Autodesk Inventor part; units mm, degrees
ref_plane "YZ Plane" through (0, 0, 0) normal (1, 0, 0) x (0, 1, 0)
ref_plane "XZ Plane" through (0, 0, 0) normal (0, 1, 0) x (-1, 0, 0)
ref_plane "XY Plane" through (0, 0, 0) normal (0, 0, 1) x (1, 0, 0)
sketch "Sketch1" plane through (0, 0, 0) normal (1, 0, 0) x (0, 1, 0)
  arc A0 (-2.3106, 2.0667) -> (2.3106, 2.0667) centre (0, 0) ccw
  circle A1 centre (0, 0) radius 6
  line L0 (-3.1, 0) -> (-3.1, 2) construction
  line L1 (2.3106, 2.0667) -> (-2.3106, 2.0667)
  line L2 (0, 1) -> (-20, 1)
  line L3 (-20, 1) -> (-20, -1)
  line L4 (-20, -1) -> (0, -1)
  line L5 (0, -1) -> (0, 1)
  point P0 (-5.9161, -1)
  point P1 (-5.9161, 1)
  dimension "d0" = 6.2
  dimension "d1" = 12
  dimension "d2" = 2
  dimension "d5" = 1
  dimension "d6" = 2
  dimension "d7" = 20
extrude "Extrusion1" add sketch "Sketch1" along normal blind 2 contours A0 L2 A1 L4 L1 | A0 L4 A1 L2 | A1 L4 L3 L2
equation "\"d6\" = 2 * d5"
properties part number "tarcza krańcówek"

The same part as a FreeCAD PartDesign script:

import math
import FreeCAD as App
import Part
import Sketcher
Q = App.Units.Quantity

doc = App.newDocument("Part")
body = doc.addObject("PartDesign::Body", "Body")

sketch1 = body.newObject("Sketcher::SketchObject", "Sketch")
sketch1.AttachmentSupport = (doc.getObject("YZ_Plane"), [""])
sketch1.MapMode = "FlatFace"
sketch1.addGeometry([
    Part.LineSegment(App.Vector(-5.9, 1, 0), App.Vector(-20, 1, 0)),
    Part.LineSegment(App.Vector(-20, 1, 0), App.Vector(-20, -1, 0)),
    Part.LineSegment(App.Vector(-20, -1, 0), App.Vector(-5.9, -1, 0)),
    Part.ArcOfCircle(Part.Circle(App.Vector(0, 0, 0), App.Vector(0, 0, 1), 6), math.radians(-170), math.radians(170)),
    Part.LineSegment(App.Vector(-2.3, 2.1, 0), App.Vector(2.3, 2.1, 0)),
    Part.ArcOfCircle(Part.Circle(App.Vector(0, 0, 0), App.Vector(0, 0, 1), 3.1), math.radians(138), math.radians(402)),
], False)
sketch1.addConstraint([
    Sketcher.Constraint("Coincident", 0, 2, 1, 1),
    Sketcher.Constraint("Coincident", 1, 2, 2, 1),
    Sketcher.Constraint("Coincident", 2, 2, 3, 1),
    Sketcher.Constraint("Coincident", 3, 2, 0, 1),
    Sketcher.Constraint("Coincident", 4, 1, 5, 1),
    Sketcher.Constraint("Coincident", 5, 2, 4, 2),
    Sketcher.Constraint("Horizontal", 0),
    Sketcher.Constraint("Vertical", 1),
    Sketcher.Constraint("Horizontal", 2),
    Sketcher.Constraint("Horizontal", 4),
    Sketcher.Constraint("Coincident", 3, 3, -1, 1),
    Sketcher.Constraint("Coincident", 5, 3, -1, 1),
    Sketcher.Constraint("Vertical", 2, 2, 3, 2),
    Sketcher.Constraint("Radius", 3, Q("6 mm")),
    Sketcher.Constraint("Radius", 5, Q("3.1 mm")),
    Sketcher.Constraint("DistanceY", 1, 2, 1, 1, Q("2 mm")),
    Sketcher.Constraint("DistanceX", 0, 2, -1, 1, Q("20 mm")),
    Sketcher.Constraint("DistanceX", 4, 1, 4, 2, Q("4.6212 mm")),
])
pad1 = body.newObject("PartDesign::Pad", "Pad")
pad1.Profile = sketch1
pad1.Length = 2

doc.recompute()
